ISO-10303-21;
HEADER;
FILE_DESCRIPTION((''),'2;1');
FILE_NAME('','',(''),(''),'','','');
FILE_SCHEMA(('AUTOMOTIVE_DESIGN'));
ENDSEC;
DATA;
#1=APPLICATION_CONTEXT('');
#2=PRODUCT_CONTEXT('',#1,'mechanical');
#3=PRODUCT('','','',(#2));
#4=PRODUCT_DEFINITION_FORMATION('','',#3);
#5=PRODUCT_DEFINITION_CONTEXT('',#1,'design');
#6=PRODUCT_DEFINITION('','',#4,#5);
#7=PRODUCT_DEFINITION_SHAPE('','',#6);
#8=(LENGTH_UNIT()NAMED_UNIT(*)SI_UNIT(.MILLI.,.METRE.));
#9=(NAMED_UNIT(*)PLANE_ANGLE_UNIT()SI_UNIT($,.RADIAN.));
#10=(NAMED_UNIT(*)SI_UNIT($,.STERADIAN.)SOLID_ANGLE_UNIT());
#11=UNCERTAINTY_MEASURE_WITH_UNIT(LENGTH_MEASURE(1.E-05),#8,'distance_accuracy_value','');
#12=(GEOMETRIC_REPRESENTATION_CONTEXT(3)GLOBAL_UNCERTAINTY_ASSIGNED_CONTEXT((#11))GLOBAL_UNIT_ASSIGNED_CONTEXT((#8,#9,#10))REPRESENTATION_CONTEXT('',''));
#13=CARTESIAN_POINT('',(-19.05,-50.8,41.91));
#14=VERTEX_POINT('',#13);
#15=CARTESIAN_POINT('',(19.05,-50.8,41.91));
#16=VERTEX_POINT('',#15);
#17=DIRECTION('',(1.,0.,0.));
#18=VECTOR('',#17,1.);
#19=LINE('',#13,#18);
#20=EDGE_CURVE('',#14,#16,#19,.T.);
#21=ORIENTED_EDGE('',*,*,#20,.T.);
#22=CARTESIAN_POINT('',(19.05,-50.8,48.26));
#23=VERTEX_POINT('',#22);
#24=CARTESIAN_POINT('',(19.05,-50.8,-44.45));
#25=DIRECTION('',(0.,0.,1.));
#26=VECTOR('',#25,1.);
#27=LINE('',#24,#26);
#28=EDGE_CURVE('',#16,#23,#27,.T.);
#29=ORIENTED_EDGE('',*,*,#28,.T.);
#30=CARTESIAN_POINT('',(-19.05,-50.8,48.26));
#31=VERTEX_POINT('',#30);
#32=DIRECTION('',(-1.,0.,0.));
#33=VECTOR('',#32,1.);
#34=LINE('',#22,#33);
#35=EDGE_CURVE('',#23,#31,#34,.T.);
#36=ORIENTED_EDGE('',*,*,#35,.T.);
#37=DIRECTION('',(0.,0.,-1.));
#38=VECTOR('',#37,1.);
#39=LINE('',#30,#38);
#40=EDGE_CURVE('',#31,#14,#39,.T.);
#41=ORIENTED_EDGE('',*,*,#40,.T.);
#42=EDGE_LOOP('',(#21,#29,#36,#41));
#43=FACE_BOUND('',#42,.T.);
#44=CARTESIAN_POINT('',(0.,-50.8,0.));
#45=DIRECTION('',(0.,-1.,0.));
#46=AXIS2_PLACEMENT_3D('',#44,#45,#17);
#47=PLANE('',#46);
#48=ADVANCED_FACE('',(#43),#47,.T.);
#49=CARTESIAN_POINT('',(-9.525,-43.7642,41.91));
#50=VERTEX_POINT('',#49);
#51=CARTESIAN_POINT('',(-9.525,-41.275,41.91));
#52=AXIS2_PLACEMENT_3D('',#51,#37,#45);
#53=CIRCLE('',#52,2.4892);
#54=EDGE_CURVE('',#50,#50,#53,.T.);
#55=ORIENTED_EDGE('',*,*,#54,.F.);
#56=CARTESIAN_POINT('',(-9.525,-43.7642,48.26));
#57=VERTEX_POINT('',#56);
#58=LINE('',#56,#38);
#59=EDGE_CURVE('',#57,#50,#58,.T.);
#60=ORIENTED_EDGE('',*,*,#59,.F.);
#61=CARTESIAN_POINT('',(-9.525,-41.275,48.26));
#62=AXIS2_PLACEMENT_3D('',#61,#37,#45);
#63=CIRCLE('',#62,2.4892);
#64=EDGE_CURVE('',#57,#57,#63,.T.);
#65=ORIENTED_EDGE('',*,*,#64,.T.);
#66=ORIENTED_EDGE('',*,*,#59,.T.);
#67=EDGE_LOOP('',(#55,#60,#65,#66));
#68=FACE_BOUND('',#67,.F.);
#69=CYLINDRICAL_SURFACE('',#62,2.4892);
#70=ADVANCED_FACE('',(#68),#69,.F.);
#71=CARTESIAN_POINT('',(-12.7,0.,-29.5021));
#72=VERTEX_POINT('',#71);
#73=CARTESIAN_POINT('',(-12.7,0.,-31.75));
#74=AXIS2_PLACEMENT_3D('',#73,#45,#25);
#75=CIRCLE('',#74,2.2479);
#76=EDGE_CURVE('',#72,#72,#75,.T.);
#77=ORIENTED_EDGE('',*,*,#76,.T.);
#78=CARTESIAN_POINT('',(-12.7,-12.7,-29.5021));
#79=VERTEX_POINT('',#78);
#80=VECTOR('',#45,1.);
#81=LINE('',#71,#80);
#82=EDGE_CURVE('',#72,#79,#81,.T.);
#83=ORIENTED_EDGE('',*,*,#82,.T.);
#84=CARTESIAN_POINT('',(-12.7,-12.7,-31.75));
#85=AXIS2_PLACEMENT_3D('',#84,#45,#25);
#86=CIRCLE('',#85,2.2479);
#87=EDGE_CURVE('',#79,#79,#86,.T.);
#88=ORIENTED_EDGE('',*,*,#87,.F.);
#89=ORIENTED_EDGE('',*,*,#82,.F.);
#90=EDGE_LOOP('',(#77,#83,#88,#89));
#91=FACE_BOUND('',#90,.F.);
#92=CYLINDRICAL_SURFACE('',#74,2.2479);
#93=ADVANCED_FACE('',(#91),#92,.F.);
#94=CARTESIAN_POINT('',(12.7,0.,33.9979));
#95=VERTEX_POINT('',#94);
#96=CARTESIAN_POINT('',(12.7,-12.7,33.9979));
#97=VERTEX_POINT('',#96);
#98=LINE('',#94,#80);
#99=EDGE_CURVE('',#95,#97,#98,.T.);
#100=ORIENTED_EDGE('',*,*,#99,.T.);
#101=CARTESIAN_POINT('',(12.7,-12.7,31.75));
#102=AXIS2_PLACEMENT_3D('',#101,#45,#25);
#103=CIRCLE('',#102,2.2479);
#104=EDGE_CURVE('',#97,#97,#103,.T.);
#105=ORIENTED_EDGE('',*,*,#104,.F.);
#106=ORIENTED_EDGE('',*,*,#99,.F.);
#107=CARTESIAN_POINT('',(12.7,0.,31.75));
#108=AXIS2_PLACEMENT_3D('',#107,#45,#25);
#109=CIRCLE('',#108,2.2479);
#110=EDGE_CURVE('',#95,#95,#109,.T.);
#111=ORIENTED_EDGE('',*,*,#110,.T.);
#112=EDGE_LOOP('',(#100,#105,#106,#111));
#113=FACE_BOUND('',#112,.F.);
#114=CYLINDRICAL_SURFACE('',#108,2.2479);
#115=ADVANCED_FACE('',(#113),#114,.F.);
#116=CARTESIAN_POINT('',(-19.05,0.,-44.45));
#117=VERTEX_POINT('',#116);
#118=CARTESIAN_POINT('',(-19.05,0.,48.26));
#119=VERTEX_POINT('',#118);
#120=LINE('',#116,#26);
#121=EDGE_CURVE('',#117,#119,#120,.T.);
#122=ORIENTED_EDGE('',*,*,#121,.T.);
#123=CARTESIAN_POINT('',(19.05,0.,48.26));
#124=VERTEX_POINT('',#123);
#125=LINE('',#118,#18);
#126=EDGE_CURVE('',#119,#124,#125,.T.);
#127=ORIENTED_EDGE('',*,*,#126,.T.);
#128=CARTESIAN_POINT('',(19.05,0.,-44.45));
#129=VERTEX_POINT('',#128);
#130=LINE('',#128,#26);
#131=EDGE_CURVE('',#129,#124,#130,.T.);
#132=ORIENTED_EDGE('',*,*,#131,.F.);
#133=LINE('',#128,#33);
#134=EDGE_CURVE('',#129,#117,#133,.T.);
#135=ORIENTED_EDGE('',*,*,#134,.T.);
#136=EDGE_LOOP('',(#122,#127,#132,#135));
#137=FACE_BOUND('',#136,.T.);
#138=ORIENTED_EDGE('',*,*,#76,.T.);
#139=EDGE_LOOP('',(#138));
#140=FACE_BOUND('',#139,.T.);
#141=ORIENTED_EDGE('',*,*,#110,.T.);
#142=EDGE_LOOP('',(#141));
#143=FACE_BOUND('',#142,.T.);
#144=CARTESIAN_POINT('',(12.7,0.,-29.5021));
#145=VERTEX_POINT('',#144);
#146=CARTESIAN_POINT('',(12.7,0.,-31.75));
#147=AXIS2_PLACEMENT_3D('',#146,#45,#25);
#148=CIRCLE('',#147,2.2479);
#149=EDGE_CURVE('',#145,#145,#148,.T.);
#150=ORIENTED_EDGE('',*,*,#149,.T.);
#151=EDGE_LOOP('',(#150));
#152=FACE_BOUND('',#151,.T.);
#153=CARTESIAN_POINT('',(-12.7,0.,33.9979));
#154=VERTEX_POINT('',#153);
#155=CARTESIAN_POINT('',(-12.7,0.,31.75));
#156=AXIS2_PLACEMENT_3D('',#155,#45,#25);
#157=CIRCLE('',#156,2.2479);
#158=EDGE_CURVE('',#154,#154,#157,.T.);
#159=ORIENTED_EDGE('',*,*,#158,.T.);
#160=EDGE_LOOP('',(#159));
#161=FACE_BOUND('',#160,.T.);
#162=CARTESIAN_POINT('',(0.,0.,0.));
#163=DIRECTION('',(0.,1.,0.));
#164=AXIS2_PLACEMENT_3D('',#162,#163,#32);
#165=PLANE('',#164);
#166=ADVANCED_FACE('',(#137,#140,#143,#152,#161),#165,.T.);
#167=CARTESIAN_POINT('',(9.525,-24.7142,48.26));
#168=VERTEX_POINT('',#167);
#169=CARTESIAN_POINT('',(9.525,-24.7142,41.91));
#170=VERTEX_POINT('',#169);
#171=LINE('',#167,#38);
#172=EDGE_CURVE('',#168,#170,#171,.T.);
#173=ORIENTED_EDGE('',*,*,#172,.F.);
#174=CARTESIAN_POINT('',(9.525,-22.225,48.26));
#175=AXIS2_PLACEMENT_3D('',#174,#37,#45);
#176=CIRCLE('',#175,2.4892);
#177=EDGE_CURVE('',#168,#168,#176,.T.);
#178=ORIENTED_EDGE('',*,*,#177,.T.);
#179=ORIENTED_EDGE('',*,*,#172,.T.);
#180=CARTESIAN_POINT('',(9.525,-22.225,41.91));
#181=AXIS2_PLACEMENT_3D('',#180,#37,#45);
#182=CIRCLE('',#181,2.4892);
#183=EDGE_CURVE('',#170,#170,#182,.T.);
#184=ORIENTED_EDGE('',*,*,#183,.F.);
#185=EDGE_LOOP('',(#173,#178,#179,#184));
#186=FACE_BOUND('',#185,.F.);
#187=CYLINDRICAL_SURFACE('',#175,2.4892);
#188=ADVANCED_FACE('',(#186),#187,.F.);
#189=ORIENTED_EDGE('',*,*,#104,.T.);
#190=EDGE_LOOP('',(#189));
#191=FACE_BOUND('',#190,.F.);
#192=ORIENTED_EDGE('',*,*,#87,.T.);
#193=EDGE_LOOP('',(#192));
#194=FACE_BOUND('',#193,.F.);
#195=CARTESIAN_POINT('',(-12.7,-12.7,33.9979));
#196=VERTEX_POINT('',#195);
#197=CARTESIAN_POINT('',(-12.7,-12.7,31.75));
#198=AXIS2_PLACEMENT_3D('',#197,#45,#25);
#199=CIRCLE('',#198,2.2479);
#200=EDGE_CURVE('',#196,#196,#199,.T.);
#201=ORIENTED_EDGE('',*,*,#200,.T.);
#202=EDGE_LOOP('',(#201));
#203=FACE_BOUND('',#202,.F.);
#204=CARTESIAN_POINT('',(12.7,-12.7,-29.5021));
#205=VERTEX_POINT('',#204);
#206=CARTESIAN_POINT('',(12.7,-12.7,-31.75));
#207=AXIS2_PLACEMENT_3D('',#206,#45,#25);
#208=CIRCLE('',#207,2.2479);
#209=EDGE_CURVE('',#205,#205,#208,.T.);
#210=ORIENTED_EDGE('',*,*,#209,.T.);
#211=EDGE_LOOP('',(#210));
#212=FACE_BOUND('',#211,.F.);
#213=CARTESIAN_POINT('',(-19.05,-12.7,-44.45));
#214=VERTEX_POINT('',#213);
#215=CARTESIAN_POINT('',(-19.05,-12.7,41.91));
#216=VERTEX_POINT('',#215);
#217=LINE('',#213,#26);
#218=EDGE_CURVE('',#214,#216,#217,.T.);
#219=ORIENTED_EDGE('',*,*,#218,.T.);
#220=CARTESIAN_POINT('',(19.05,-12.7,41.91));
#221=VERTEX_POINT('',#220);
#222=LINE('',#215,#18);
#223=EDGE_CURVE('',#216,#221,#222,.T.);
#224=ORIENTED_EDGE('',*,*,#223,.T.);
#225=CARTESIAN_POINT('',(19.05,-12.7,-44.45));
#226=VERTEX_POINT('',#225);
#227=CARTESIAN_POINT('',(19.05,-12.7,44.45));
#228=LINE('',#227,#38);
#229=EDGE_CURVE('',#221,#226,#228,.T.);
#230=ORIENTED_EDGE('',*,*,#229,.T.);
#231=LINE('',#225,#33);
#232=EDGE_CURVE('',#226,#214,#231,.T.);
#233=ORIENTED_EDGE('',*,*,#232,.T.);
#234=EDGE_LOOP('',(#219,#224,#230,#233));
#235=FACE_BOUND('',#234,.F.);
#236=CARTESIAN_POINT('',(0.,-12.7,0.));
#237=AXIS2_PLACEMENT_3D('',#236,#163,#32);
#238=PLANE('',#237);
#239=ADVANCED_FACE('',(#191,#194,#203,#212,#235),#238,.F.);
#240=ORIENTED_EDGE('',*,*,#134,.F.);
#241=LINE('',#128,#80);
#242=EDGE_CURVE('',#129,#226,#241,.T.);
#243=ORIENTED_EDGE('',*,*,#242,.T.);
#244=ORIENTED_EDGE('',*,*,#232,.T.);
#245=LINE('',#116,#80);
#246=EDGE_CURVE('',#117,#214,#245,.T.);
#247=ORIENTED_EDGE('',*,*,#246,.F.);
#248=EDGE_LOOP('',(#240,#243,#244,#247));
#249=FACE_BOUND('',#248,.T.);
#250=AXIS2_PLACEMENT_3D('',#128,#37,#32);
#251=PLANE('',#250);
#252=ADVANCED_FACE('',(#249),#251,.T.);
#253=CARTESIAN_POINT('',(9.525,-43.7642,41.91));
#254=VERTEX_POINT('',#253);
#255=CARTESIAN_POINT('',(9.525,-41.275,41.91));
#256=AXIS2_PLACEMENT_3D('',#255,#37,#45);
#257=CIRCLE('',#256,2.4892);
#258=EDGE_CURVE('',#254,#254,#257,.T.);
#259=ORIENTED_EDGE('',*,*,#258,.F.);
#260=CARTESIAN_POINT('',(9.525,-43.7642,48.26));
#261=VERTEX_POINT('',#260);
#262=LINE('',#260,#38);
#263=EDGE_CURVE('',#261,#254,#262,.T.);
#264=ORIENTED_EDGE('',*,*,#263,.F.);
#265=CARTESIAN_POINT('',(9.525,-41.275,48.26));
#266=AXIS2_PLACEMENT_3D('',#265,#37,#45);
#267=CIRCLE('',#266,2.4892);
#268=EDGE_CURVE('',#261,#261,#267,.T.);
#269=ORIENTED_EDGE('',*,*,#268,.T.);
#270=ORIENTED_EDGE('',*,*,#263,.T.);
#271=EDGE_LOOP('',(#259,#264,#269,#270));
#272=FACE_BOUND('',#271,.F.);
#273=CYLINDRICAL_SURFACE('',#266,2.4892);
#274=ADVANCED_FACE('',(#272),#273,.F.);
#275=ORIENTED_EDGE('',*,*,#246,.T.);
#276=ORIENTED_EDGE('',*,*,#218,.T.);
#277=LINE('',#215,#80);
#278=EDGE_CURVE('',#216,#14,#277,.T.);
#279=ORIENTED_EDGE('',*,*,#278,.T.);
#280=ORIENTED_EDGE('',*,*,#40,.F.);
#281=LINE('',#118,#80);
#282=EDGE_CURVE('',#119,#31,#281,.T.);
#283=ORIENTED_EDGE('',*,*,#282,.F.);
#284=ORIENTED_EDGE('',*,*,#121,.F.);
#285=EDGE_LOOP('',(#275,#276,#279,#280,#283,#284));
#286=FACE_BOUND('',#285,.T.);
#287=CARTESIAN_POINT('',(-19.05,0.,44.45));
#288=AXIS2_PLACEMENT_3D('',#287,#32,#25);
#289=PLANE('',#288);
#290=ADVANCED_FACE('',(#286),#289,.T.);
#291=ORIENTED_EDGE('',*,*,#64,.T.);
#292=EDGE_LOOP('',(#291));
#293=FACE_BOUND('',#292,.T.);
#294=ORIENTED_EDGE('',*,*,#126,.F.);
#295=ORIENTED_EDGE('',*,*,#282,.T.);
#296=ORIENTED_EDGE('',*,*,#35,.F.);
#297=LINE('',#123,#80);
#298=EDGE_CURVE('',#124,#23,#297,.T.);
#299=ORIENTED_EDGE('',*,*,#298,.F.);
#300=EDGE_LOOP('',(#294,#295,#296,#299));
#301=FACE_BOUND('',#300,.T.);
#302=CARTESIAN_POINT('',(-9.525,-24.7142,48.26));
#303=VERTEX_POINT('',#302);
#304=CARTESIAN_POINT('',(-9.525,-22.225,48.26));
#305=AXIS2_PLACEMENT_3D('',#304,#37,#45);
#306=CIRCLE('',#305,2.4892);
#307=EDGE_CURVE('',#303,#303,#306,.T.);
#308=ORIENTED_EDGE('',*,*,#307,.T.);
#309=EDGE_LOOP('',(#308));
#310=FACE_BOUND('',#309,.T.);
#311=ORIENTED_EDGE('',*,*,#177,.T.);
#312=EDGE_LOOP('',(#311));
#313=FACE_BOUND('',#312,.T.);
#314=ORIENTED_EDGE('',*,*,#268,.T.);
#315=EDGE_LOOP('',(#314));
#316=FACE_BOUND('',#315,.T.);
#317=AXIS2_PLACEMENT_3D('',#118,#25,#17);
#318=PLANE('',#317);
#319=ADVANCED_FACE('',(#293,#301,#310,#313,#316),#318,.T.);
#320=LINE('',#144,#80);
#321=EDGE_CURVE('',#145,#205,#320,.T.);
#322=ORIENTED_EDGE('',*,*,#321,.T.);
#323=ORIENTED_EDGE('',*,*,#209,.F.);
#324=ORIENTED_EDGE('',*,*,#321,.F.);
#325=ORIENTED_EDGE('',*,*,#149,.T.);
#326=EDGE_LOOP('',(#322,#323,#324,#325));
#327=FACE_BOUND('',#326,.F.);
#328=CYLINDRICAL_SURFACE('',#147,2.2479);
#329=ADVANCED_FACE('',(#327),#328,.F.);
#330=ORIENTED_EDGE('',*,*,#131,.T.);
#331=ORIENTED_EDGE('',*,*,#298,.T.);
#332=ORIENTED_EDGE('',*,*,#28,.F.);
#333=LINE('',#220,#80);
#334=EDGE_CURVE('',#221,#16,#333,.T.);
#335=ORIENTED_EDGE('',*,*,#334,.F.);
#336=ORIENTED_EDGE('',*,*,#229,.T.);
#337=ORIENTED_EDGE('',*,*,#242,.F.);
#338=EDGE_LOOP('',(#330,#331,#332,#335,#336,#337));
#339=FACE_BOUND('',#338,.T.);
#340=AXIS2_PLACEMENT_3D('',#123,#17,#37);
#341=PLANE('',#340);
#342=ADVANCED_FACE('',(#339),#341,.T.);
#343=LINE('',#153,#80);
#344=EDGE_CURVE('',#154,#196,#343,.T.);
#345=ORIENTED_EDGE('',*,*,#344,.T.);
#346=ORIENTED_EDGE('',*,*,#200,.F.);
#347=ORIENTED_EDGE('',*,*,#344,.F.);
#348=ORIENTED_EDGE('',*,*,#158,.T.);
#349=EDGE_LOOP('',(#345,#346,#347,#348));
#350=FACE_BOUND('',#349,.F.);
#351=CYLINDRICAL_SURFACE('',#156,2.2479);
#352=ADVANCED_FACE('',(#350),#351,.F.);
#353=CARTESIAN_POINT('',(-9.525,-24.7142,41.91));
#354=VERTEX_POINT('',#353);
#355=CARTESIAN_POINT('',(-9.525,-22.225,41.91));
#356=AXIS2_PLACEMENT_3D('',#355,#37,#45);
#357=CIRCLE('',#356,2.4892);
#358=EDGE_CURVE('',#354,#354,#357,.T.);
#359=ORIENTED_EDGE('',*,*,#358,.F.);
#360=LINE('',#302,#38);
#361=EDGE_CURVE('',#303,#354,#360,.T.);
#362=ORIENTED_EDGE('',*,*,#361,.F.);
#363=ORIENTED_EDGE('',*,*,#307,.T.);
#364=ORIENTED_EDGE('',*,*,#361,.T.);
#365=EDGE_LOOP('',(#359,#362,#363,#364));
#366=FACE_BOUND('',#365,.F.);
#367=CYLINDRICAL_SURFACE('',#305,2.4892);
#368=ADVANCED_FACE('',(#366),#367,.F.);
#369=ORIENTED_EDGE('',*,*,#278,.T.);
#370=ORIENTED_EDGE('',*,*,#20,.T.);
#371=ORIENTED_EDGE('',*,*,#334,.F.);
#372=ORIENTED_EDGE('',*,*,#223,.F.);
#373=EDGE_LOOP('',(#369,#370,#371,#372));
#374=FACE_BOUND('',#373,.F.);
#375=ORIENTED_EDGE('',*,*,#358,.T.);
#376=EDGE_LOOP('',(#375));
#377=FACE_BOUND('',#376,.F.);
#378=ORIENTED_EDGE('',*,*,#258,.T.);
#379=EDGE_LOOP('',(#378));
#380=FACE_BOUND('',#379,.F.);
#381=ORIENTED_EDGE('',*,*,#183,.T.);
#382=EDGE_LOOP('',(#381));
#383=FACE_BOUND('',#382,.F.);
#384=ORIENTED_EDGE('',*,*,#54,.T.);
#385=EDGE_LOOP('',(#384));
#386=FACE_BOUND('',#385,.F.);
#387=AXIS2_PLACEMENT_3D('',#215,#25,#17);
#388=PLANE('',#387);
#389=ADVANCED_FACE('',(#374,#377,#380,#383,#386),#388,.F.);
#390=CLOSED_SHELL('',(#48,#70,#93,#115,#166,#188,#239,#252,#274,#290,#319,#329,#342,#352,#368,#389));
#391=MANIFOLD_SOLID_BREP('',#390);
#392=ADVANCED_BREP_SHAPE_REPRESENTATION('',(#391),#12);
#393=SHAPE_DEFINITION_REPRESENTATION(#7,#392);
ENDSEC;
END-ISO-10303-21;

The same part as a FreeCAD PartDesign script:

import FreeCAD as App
import Part
import Sketcher
from FreeCAD import Vector
Q = App.Units.Quantity


def add_polygon(sketch, points):
    """Adds a closed chain of lines whose ends are joined by coincident constraints."""
    first, n = sketch.GeometryCount, len(points)
    for a, b in zip(points, points[1:] + points[:1]):
        sketch.addGeometry(Part.LineSegment(App.Vector(*a, 0), App.Vector(*b, 0)), False)
    for i in range(n):
        sketch.addConstraint(Sketcher.Constraint("Coincident", first + i, 2, first + (i + 1) % n, 1))

doc = App.newDocument("Part")
body = doc.addObject("PartDesign::Body", "Body")

# Sketch on XZ plane
sketch1 = doc.addObject("Sketcher::SketchObject", "Sketch")
body.addObject(sketch1)
sketch1.AttachmentSupport = (doc.XZ_Plane, [""])
sketch1.MapMode = "FlatFace"
add_polygon(sketch1, [(19, 48), (19, -44), (-19, -44), (-19, 48)])  # lines 0-3
sketch1.addConstraint([
    Sketcher.Constraint("Vertical", 0),
    Sketcher.Constraint("Horizontal", 1),
    Sketcher.Constraint("Vertical", 2),
    Sketcher.Constraint("Horizontal", 3),
    Sketcher.Constraint("DistanceX", 1, 2, 1, 1, Q("1.5 in")),
    Sketcher.Constraint("DistanceY", 0, 2, 0, 1, Q("3.65 in")),
    Sketcher.Constraint("DistanceY", -1, 1, 2, 2, Q("1.9 in")),
    Sketcher.Constraint("DistanceX", -1, 1, 0, 2, Q("0.75 in")),
])
pad1 = doc.addObject("PartDesign::Pad", "Pad")
body.addObject(pad1)
pad1.Profile = sketch1
pad1.Length = Q("0.5 in")

# Sketch on XZ plane
sketch2 = doc.addObject("Sketcher::SketchObject", "Sketch001")
body.addObject(sketch2)
sketch2.AttachmentSupport = (doc.XZ_Plane, [""])
sketch2.MapMode = "FlatFace"
sketch2.AttachmentOffset = App.Placement(Vector(0, 0, 0.5 * 25.4), App.Rotation())
add_polygon(sketch2, [(-19, 42), (19, 42), (19, 48), (-19, 48)])  # lines 0-3
sketch2.addConstraint([
    Sketcher.Constraint("Horizontal", 0),
    Sketcher.Constraint("Vertical", 1),
    Sketcher.Constraint("Horizontal", 2),
    Sketcher.Constraint("Vertical", 3),
    Sketcher.Constraint("DistanceY", 1, 1, 1, 2, Q("0.25 in")),
    Sketcher.Constraint("DistanceX", 0, 1, 0, 2, Q("1.5 in")),
    Sketcher.Constraint("DistanceY", -1, 1, 1, 2, Q("1.9 in")),
    Sketcher.Constraint("DistanceX", -1, 1, 0, 2, Q("0.75 in")),
])
pad2 = doc.addObject("PartDesign::Pad", "Pad001")
body.addObject(pad2)
pad2.Profile = sketch2
pad2.Length = Q("1.5 in")

# Sketch on XZ plane
sketch3 = doc.addObject("Sketcher::SketchObject", "Sketch002")
body.addObject(sketch3)
sketch3.AttachmentSupport = (doc.XZ_Plane, [""])
sketch3.MapMode = "FlatFace"
sketch3.addGeometry([
    Part.Circle(Vector(12.7, 31.8, 0), Vector(0, 0, 1), 2.2),
    Part.Circle(Vector(12.7, -31.8, 0), Vector(0, 0, 1), 2.2),
    Part.Circle(Vector(-12.7, -31.8, 0), Vector(0, 0, 1), 2.2),
    Part.Circle(Vector(-12.7, 31.8, 0), Vector(0, 0, 1), 2.2),
], False)
sketch3.addConstraint([
    Sketcher.Constraint("Equal", 0, 1),
    Sketcher.Constraint("Equal", 1, 2),
    Sketcher.Constraint("Equal", 2, 3),
    Sketcher.Constraint("Symmetric", 0, 3, 2, 3, -1, 1),
    Sketcher.Constraint("Symmetric", 1, 3, 3, 3, -1, 1),
    Sketcher.Constraint("Symmetric", 1, 3, 2, 3, -2),
    Sketcher.Constraint("Diameter", 0, Q("0.177 in")),
    Sketcher.Constraint("DistanceX", 2, 3, 1, 3, Q("1 in")),
    Sketcher.Constraint("DistanceY", 1, 3, 0, 3, Q("2.5 in")),
])
doc.recompute()
hole = doc.addObject("PartDesign::Hole", "Hole")
body.addObject(hole)
hole.Profile = sketch3
hole.ThreadType = "None"
hole.Diameter = Q("0.177 in")
hole.DepthType = "ThroughAll"
hole.Reversed = True

# Sketch on XY plane
sketch4 = doc.addObject("Sketcher::SketchObject", "Sketch003")
body.addObject(sketch4)
sketch4.AttachmentSupport = (doc.XY_Plane, [""])
sketch4.MapMode = "FlatFace"
sketch4.AttachmentOffset = App.Placement(Vector(0, 0, 1.9 * 25.4), App.Rotation())
sketch4.addGeometry([
    Part.Circle(Vector(-9.5, -41.3, 0), Vector(0, 0, 1), 2.5),
    Part.Circle(Vector(9.5, -41.3, 0), Vector(0, 0, 1), 2.5),
    Part.Circle(Vector(9.5, -22.2, 0), Vector(0, 0, 1), 2.5),
    Part.Circle(Vector(-9.5, -22.2, 0), Vector(0, 0, 1), 2.5),
], False)
sketch4.addConstraint([
    Sketcher.Constraint("Equal", 0, 1),
    Sketcher.Constraint("Equal", 1, 2),
    Sketcher.Constraint("Equal", 2, 3),
    Sketcher.Constraint("Symmetric", 0, 3, 1, 3, -2),
    Sketcher.Constraint("Symmetric", 2, 3, 3, 3, -2),
    Sketcher.Constraint("Vertical", 1, 3, 2, 3),
    Sketcher.Constraint("Diameter", 0, Q("0.196 in")),
    Sketcher.Constraint("DistanceX", 0, 3, 1, 3, Q("0.75 in")),
    Sketcher.Constraint("DistanceY", 1, 3, 2, 3, Q("0.75 in")),
    Sketcher.Constraint("DistanceY", 0, 3, -1, 1, Q("1.625 in")),
])
doc.recompute()
hole2 = doc.addObject("PartDesign::Hole", "Hole001")
body.addObject(hole2)
hole2.Profile = sketch4
hole2.ThreadType = "None"
hole2.Diameter = Q("0.196 in")
hole2.DepthType = "ThroughAll"

doc.recompute()
